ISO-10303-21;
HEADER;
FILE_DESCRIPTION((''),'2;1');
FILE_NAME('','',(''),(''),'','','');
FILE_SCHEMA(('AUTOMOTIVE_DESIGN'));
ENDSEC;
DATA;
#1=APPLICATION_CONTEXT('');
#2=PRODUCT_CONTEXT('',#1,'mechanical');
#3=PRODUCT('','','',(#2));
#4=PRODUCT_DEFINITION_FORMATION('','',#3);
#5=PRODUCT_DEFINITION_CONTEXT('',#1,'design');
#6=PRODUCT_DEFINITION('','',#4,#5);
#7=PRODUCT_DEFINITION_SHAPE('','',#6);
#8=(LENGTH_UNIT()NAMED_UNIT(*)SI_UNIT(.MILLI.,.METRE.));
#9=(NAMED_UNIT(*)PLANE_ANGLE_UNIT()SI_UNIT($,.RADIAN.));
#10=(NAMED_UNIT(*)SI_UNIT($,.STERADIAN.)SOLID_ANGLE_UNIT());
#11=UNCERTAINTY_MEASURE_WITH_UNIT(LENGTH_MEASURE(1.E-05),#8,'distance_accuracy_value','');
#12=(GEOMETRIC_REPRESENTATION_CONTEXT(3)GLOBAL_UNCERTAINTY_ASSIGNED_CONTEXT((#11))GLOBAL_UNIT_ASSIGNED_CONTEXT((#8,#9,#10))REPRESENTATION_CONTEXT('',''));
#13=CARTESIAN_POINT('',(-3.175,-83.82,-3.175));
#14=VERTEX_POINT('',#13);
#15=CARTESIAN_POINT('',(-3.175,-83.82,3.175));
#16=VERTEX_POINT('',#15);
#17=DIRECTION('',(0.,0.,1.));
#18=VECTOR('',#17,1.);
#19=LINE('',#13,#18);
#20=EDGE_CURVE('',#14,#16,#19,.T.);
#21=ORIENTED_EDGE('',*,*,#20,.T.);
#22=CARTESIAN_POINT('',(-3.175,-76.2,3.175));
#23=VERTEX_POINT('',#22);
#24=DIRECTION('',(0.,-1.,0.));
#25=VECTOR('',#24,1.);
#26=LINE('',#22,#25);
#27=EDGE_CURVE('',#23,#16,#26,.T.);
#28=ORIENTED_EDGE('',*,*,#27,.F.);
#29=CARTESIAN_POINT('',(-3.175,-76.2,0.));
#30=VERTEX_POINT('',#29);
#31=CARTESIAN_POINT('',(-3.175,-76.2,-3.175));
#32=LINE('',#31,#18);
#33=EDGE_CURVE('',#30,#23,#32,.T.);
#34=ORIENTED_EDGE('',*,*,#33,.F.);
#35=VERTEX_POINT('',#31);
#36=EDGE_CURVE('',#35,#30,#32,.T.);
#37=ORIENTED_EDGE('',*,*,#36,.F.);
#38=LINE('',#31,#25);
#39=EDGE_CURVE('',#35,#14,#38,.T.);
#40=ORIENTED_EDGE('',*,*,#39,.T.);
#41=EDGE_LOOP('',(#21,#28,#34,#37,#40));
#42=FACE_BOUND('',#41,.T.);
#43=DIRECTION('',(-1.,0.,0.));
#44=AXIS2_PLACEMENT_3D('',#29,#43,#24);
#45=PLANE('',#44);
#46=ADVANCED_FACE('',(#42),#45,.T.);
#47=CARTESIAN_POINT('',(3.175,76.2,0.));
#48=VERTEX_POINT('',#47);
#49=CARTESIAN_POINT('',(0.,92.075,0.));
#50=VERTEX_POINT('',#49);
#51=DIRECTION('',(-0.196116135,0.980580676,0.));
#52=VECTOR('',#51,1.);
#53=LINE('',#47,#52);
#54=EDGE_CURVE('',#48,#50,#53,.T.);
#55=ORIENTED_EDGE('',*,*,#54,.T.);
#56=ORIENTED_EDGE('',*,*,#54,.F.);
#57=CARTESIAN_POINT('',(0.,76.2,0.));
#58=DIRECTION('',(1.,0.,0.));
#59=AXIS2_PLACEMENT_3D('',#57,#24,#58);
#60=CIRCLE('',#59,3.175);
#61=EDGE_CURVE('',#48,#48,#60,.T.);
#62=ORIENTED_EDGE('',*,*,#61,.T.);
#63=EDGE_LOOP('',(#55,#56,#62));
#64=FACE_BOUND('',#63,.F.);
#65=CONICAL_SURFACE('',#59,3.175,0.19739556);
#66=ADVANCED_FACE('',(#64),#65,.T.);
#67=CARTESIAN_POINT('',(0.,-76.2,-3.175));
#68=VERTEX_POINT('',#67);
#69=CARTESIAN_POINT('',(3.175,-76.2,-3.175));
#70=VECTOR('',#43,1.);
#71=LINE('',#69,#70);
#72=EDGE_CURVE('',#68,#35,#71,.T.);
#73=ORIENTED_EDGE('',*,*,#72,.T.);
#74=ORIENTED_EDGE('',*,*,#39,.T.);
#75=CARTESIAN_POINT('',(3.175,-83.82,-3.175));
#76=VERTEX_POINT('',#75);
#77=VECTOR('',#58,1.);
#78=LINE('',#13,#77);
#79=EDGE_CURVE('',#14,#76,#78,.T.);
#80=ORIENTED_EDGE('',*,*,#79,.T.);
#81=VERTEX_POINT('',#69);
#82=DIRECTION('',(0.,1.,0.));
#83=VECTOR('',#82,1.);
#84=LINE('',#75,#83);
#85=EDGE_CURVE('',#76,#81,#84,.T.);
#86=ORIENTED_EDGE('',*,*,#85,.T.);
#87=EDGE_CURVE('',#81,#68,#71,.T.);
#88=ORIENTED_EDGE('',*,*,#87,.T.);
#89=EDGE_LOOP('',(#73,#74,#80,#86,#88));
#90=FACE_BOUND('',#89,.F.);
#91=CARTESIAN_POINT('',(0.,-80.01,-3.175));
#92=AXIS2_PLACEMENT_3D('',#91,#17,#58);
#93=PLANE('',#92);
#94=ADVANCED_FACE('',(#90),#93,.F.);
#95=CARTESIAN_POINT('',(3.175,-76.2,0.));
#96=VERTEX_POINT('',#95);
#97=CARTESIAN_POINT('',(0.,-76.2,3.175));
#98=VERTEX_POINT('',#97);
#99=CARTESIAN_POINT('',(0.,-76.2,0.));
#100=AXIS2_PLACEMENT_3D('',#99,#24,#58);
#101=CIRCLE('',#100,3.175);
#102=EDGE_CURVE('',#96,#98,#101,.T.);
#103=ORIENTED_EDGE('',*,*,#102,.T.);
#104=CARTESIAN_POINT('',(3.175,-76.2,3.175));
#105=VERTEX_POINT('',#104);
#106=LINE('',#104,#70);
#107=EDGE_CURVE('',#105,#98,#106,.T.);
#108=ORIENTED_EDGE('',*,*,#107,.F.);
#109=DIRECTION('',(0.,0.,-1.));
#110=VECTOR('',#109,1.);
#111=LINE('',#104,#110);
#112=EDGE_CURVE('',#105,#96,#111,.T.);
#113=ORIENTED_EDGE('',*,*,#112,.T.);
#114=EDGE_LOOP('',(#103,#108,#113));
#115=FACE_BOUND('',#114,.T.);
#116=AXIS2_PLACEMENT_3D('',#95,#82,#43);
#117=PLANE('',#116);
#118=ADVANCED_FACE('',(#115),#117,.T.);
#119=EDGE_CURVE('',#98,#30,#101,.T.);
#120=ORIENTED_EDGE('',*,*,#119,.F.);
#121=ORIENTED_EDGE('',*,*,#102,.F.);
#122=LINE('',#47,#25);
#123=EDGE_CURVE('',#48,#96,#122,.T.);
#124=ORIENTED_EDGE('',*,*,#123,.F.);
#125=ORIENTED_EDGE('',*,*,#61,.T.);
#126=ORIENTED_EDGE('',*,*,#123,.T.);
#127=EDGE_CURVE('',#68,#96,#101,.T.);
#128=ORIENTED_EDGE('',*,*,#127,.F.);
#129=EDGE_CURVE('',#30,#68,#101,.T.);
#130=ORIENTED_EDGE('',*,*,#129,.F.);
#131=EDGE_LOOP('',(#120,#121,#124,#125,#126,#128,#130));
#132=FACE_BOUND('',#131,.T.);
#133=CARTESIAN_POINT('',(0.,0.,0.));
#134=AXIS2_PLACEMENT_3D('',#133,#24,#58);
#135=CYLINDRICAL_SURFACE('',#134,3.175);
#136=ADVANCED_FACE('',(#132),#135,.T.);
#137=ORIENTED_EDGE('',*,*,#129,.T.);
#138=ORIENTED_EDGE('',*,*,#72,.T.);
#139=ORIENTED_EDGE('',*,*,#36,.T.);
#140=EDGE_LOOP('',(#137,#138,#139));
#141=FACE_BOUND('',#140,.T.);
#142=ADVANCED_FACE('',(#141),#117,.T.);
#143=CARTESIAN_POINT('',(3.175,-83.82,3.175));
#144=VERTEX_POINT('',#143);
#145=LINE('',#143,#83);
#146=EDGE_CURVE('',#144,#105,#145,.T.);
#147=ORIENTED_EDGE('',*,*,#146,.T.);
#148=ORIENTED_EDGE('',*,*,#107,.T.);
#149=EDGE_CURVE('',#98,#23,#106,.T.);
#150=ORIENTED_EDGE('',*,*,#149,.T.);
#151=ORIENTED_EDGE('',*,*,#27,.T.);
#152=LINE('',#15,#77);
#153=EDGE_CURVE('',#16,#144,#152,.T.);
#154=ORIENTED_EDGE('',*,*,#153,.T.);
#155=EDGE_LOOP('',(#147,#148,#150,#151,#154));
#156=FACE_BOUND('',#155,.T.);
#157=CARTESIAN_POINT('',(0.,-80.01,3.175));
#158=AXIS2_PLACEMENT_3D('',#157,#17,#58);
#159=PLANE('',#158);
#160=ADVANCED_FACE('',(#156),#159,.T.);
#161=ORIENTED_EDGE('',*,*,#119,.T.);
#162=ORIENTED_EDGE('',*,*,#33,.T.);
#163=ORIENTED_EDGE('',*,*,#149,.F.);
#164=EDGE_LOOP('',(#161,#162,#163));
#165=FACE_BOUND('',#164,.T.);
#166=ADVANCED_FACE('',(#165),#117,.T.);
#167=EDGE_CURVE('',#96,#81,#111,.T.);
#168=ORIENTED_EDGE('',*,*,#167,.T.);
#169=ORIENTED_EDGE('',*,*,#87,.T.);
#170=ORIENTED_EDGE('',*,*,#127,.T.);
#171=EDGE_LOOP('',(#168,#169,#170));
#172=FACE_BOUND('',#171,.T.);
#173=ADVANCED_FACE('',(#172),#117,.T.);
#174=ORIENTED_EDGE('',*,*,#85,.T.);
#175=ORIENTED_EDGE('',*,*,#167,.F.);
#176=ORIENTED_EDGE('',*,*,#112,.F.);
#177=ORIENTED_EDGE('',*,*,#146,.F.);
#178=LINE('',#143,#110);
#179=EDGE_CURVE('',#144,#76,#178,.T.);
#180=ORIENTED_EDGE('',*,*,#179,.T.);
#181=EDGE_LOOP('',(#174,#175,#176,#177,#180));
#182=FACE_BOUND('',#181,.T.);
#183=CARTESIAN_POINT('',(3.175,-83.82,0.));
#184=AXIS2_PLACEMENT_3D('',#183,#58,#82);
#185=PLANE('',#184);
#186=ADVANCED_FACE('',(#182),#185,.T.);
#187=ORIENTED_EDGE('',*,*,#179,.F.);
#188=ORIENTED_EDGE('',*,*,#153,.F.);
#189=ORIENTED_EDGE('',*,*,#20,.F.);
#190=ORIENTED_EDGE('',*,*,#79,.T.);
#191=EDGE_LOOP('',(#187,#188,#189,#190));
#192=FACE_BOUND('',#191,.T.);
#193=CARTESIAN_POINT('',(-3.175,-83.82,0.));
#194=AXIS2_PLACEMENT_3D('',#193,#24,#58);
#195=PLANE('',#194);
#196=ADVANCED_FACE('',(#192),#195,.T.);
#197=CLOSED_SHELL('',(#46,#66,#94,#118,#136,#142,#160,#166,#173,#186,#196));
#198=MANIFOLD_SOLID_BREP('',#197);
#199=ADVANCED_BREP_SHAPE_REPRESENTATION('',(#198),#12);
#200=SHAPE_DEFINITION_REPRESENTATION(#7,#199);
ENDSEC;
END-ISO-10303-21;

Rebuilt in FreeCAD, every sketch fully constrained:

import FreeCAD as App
import Part
import Sketcher
Q = App.Units.Quantity

doc = App.newDocument("Part")
body = doc.addObject("PartDesign::Body", "Body")

# Sketch on XZ plane
sketch1 = body.newObject("Sketcher::SketchObject", "Sketch")
sketch1.AttachmentSupport = (doc.getObject("XZ_Plane"), [""])
sketch1.MapMode = "FlatFace"
sketch1.addGeometry(Part.Circle(App.Vector(0, 0, 0), App.Vector(0, 0, 1), 3.175), False)
sketch1.addConstraint([
    Sketcher.Constraint("Coincident", 0, 3, -1, 1),
    Sketcher.Constraint("Diameter", 0, Q("0.25 in")),
])
pad1 = body.newObject("PartDesign::Pad", "Pad")
pad1.Profile = sketch1
pad1.Length = Q("6 in")
pad1.Midplane = True

# Sketch on XY plane
sketch2 = body.newObject("Sketcher::SketchObject", "Sketch001")
sketch2.AttachmentSupport = (doc.getObject("XY_Plane"), [""])
sketch2.MapMode = "FlatFace"
sketch2.addGeometry([
    Part.LineSegment(App.Vector(0, 92.075, 0), App.Vector(0, 76.2, 0)),
    Part.LineSegment(App.Vector(0, 76.2, 0), App.Vector(3.175, 76.2, 0)),
    Part.LineSegment(App.Vector(3.175, 76.2, 0), App.Vector(0, 92.075, 0)),
], False)
sketch2.addConstraint([
    Sketcher.Constraint("Coincident", 0, 2, 1, 1),
    Sketcher.Constraint("Coincident", 1, 2, 2, 1),
    Sketcher.Constraint("Coincident", 2, 2, 0, 1),
    Sketcher.Constraint("Vertical", 0),
    Sketcher.Constraint("Horizontal", 1),
    Sketcher.Constraint("PointOnObject", 0, 2, -2),
    Sketcher.Constraint("DistanceY", -1, 1, 0, 2, Q("3 in")),
    Sketcher.Constraint("DistanceX", 1, 1, 1, 2, Q("0.125 in")),
    Sketcher.Constraint("DistanceY", 0, 2, 0, 1, Q("0.625 in")),
])
revolution = body.newObject("PartDesign::Revolution", "Revolution")
revolution.Profile = sketch2
revolution.ReferenceAxis = (sketch2, ["V_Axis"])
revolution.Angle = 360

# Sketch on XY plane
sketch3 = body.newObject("Sketcher::SketchObject", "Sketch002")
sketch3.AttachmentSupport = (doc.getObject("XY_Plane"), [""])
sketch3.MapMode = "FlatFace"
sketch3.addGeometry([
    Part.LineSegment(App.Vector(3.175, -76.2, 0), App.Vector(-3.175, -76.2, 0)),
    Part.LineSegment(App.Vector(-3.175, -76.2, 0), App.Vector(-3.175, -83.82, 0)),
    Part.LineSegment(App.Vector(-3.175, -83.82, 0), App.Vector(3.175, -83.82, 0)),
    Part.LineSegment(App.Vector(3.175, -83.82, 0), App.Vector(3.175, -76.2, 0)),
], False)
sketch3.addConstraint([
    Sketcher.Constraint("Coincident", 0, 2, 1, 1),
    Sketcher.Constraint("Coincident", 1, 2, 2, 1),
    Sketcher.Constraint("Coincident", 2, 2, 3, 1),
    Sketcher.Constraint("Coincident", 3, 2, 0, 1),
    Sketcher.Constraint("Horizontal", 0),
    Sketcher.Constraint("Vertical", 1),
    Sketcher.Constraint("Horizontal", 2),
    Sketcher.Constraint("Vertical", 3),
    Sketcher.Constraint("DistanceY", 1, 2, 1, 1, Q("0.3 in")),
    Sketcher.Constraint("DistanceY", 0, 2, -1, 1, Q("3 in")),
    Sketcher.Constraint("DistanceX", 0, 2, 0, 1, Q("0.25 in")),
    Sketcher.Constraint("DistanceX", 0, 2, -1, 1, Q("0.125 in")),
])
pad2 = body.newObject("PartDesign::Pad", "Pad001")
pad2.Profile = sketch3
pad2.Length = Q("0.25 in")
pad2.Midplane = True

doc.recompute()
